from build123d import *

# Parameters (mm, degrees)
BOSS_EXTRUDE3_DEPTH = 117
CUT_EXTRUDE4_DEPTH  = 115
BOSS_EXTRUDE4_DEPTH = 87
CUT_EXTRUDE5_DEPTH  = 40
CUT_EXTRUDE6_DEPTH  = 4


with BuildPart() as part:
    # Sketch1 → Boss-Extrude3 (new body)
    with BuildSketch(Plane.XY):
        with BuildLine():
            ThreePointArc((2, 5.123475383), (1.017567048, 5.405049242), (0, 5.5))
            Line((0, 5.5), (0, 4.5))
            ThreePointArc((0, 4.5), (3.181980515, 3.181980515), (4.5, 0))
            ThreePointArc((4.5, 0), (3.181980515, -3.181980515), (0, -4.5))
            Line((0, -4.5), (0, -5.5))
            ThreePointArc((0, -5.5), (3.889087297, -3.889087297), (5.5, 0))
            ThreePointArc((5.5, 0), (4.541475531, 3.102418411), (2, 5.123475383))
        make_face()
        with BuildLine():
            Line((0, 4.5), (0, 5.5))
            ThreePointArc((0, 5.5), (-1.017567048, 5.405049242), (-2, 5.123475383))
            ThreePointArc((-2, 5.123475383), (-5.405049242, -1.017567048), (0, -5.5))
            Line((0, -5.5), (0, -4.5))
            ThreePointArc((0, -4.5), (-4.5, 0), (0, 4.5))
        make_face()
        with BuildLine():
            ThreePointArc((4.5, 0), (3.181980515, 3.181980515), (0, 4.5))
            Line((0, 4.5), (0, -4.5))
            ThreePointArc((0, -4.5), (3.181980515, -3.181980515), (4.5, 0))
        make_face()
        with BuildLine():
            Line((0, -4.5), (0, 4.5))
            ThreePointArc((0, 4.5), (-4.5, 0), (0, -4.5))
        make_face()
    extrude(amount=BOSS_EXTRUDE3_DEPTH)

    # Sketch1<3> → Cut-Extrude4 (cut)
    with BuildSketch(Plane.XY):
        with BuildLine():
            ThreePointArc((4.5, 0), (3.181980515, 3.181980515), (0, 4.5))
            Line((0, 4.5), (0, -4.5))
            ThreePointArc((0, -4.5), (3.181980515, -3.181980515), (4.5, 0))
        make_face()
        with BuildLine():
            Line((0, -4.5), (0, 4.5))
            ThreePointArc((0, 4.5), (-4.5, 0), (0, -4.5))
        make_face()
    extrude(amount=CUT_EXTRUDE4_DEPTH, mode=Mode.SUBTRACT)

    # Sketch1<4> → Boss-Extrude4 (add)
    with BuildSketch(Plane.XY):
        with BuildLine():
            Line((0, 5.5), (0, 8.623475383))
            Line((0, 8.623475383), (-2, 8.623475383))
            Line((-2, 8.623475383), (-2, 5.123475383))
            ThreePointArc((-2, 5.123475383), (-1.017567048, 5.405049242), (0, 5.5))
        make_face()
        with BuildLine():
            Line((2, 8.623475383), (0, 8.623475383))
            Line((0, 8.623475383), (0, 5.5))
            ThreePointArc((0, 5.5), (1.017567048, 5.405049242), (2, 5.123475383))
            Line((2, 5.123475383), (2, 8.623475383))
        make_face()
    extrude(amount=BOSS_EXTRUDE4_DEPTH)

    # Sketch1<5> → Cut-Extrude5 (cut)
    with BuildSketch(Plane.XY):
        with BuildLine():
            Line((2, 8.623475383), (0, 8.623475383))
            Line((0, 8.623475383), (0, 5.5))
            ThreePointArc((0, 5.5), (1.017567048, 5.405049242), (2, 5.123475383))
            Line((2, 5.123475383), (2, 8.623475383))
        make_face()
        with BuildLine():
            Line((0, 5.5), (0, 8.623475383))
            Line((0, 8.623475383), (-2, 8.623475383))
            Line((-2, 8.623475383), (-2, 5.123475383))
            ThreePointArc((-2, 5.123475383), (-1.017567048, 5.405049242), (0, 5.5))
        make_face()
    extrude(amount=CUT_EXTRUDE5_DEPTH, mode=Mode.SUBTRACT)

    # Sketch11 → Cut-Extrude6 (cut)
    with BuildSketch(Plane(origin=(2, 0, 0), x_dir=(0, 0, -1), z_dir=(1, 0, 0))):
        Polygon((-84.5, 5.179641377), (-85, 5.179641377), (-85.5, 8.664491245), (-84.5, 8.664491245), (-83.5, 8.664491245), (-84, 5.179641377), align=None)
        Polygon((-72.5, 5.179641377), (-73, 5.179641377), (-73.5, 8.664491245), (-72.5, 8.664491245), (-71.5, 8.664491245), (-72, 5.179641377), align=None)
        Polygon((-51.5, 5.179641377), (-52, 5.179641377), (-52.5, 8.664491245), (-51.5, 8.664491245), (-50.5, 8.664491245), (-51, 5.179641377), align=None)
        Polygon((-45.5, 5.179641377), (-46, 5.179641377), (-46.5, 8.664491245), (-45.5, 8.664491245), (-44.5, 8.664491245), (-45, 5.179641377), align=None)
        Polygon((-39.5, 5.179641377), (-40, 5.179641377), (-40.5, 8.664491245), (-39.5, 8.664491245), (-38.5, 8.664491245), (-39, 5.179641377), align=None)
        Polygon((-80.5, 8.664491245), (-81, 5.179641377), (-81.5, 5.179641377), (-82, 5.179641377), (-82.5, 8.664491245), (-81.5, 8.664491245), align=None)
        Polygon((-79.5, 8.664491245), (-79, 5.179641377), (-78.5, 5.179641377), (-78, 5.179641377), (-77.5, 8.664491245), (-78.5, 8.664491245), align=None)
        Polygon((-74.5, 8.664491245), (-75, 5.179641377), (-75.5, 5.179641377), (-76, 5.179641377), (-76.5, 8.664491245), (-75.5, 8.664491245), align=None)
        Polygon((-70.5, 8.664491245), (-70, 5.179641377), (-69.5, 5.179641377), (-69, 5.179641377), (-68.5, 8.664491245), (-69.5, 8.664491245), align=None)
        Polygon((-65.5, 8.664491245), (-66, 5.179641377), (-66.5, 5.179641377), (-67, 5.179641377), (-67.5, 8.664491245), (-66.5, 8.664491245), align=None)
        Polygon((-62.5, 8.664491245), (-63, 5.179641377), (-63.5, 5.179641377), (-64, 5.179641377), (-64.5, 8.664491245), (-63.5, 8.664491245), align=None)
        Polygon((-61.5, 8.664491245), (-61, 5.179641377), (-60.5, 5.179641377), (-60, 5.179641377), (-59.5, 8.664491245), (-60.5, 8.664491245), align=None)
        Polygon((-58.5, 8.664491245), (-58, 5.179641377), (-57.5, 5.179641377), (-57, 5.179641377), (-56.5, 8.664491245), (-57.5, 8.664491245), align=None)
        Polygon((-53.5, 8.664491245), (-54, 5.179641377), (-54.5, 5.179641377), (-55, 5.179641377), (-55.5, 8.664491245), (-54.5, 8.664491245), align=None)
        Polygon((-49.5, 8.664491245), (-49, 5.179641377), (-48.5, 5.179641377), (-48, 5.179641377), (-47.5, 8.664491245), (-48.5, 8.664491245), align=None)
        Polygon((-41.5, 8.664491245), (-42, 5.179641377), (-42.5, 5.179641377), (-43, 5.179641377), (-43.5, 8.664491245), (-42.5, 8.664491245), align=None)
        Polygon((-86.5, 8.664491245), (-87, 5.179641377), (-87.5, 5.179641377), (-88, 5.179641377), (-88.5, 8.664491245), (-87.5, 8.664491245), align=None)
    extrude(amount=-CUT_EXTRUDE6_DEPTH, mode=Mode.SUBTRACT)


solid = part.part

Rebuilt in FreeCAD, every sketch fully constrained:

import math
import FreeCAD as App
import Part
import Sketcher
from FreeCAD import Vector

doc = App.newDocument("Part")
params = doc.addObject("Spreadsheet::Sheet", "Params")
for row, (alias, value) in enumerate([
    ("sketch1_radius", "5.5 mm"),
    ("pad1_length", "117 mm"),
    ("sketch2_radius", "4.5 mm"),
    ("pocket1_length", "115 mm"),
    ("sketch3_radius", "5.5 mm"),
    ("sketch3_width", "4 mm"),
    ("sketch3_height", "3.5 mm"),
    ("pad2_length", "87 mm"),
    ("sketch4_radius", "5.5 mm"),
    ("sketch4_width", "4 mm"),
    ("sketch4_height", "3.5 mm"),
    ("pocket2_length", "40 mm"),
    ("sketch5_height", "1 mm"),
    ("sketch5_height2", "2 mm"),
    ("pocket3_length", "4 mm"),
], start=1):
    params.set(f"A{row}", alias)
    params.set(f"B{row}", "=" + value)
    params.setAlias(f"B{row}", alias)

body = doc.addObject("PartDesign::Body", "Body")

sketch1 = body.newObject("Sketcher::SketchObject", "Sketch")
sketch1.AttachmentSupport = (doc.getObject("XY_Plane"), [""])
sketch1.MapMode = "FlatFace"
sketch1.addGeometry([
    Part.ArcOfCircle(Part.Circle(Vector(0, 0, 0), Vector(0, 0, 1), 5.5), math.radians(-90), math.radians(0)),
    Part.ArcOfCircle(Part.Circle(Vector(0, 0, 0), Vector(0, 0, 1), 5.5), math.radians(0), math.radians(69)),
    Part.ArcOfCircle(Part.Circle(Vector(0, 0, 0), Vector(0, 0, 1), 5.5), math.radians(69), math.radians(90)),
    Part.ArcOfCircle(Part.Circle(Vector(0, 0, 0), Vector(0, 0, 1), 5.5), math.radians(90), math.radians(111)),
    Part.ArcOfCircle(Part.Circle(Vector(0, 0, 0), Vector(0, 0, 1), 5.5), math.radians(111), math.radians(270)),
], False)
sketch1.addConstraint([
    Sketcher.Constraint("Tangent", 0, 2, 1, 1),
    Sketcher.Constraint("Tangent", 1, 2, 2, 1),
    Sketcher.Constraint("Tangent", 2, 2, 3, 1),
    Sketcher.Constraint("Tangent", 3, 2, 4, 1),
    Sketcher.Constraint("Tangent", 4, 2, 0, 1),
    Sketcher.Constraint("Coincident", 0, 3, -1, 1),
    Sketcher.Constraint("Coincident", 2, 3, -1, 1),
    Sketcher.Constraint("PointOnObject", 0, 2, -1),
    Sketcher.Constraint("PointOnObject", 2, 2, -2),
    Sketcher.Constraint("PointOnObject", 4, 2, -2),
    Sketcher.Constraint("Horizontal", 1, 2, 3, 2),
    Sketcher.Constraint("Radius", 0, 5.5),
    Sketcher.Constraint("DistanceX", -1, 1, 1, 2, 2.0),
])
sketch1.setExpression("Constraints[11]", "Params.sketch1_radius")
pad1 = body.newObject("PartDesign::Pad", "Pad")
pad1.Profile = sketch1
pad1.setExpression("Length", "Params.pad1_length")

sketch2 = body.newObject("Sketcher::SketchObject", "Sketch001")
sketch2.AttachmentSupport = (doc.getObject("XY_Plane"), [""])
sketch2.MapMode = "FlatFace"
sketch2.addGeometry([
    Part.ArcOfCircle(Part.Circle(Vector(0, 0, 0), Vector(0, 0, 1), 4.5), math.radians(0), math.radians(90)),
    Part.ArcOfCircle(Part.Circle(Vector(0, 0, 0), Vector(0, 0, 1), 4.5), math.radians(90), math.radians(270)),
    Part.ArcOfCircle(Part.Circle(Vector(0, 0, 0), Vector(0, 0, 1), 4.5), math.radians(-90), math.radians(0)),
], False)
sketch2.addConstraint([
    Sketcher.Constraint("Tangent", 0, 2, 1, 1),
    Sketcher.Constraint("Tangent", 1, 2, 2, 1),
    Sketcher.Constraint("Tangent", 2, 2, 0, 1),
    Sketcher.Constraint("Coincident", 0, 3, -1, 1),
    Sketcher.Constraint("PointOnObject", 0, 2, -2),
    Sketcher.Constraint("PointOnObject", 1, 2, -2),
    Sketcher.Constraint("PointOnObject", 2, 2, -1),
    Sketcher.Constraint("Radius", 0, 4.5),
])
sketch2.setExpression("Constraints[7]", "Params.sketch2_radius")
pocket1 = body.newObject("PartDesign::Pocket", "Pocket")
pocket1.Profile = sketch2
pocket1.setExpression("Length", "Params.pocket1_length")
pocket1.Reversed = True

sketch3 = body.newObject("Sketcher::SketchObject", "Sketch002")
sketch3.AttachmentSupport = (doc.getObject("XY_Plane"), [""])
sketch3.MapMode = "FlatFace"
sketch3.addGeometry([
    Part.LineSegment(Vector(-2, 8.6, 0), Vector(-2, 5.1, 0)),
    Part.ArcOfCircle(Part.Circle(Vector(0, 0, 0), Vector(0, 0, 1), 5.5), math.radians(90), math.radians(111)),
    Part.ArcOfCircle(Part.Circle(Vector(0, 0, 0), Vector(0, 0, 1), 5.5), math.radians(69), math.radians(90)),
    Part.LineSegment(Vector(2, 5.1, 0), Vector(2, 8.6, 0)),
    Part.LineSegment(Vector(2, 8.6, 0), Vector(-2, 8.6, 0)),
], False)
sketch3.addConstraint([
    Sketcher.Constraint("Coincident", 0, 2, 1, 2),
    Sketcher.Constraint("Tangent", 1, 1, 2, 2),
    Sketcher.Constraint("Coincident", 2, 1, 3, 1),
    Sketcher.Constraint("Coincident", 3, 2, 4, 1),
    Sketcher.Constraint("Coincident", 4, 2, 0, 1),
    Sketcher.Constraint("Vertical", 0),
    Sketcher.Constraint("Vertical", 3),
    Sketcher.Constraint("Horizontal", 4),
    Sketcher.Constraint("Coincident", 1, 3, -1, 1),
    Sketcher.Constraint("Equal", 1, 2),
    Sketcher.Constraint("PointOnObject", 1, 1, -2),
    Sketcher.Constraint("Horizontal", 0, 2, 2, 1),
    Sketcher.Constraint("Radius", 1, 5.5),
    Sketcher.Constraint("DistanceX", 4, 2, 4, 1, 4.0),
    Sketcher.Constraint("DistanceY", 0, 2, 0, 1, 3.5),
])
sketch3.setExpression("Constraints[12]", "Params.sketch3_radius")
sketch3.setExpression("Constraints[13]", "Params.sketch3_width")
sketch3.setExpression("Constraints[14]", "Params.sketch3_height")
pad2 = body.newObject("PartDesign::Pad", "Pad001")
pad2.Profile = sketch3
pad2.setExpression("Length", "Params.pad2_length")

sketch4 = body.newObject("Sketcher::SketchObject", "Sketch003")
sketch4.AttachmentSupport = (doc.getObject("XY_Plane"), [""])
sketch4.MapMode = "FlatFace"
sketch4.addGeometry([
    Part.LineSegment(Vector(2, 8.6, 0), Vector(-2, 8.6, 0)),
    Part.LineSegment(Vector(-2, 8.6, 0), Vector(-2, 5.1, 0)),
    Part.ArcOfCircle(Part.Circle(Vector(0, 0, 0), Vector(0, 0, 1), 5.5), math.radians(90), math.radians(111)),
    Part.ArcOfCircle(Part.Circle(Vector(0, 0, 0), Vector(0, 0, 1), 5.5), math.radians(69), math.radians(90)),
    Part.LineSegment(Vector(2, 5.1, 0), Vector(2, 8.6, 0)),
], False)
sketch4.addConstraint([
    Sketcher.Constraint("Coincident", 0, 2, 1, 1),
    Sketcher.Constraint("Coincident", 1, 2, 2, 2),
    Sketcher.Constraint("Tangent", 2, 1, 3, 2),
    Sketcher.Constraint("Coincident", 3, 1, 4, 1),
    Sketcher.Constraint("Coincident", 4, 2, 0, 1),
    Sketcher.Constraint("Horizontal", 0),
    Sketcher.Constraint("Vertical", 1),
    Sketcher.Constraint("Vertical", 4),
    Sketcher.Constraint("Coincident", 2, 3, -1, 1),
    Sketcher.Constraint("Equal", 2, 3),
    Sketcher.Constraint("PointOnObject", 2, 1, -2),
    Sketcher.Constraint("Horizontal", 1, 2, 3, 1),
    Sketcher.Constraint("Radius", 2, 5.5),
    Sketcher.Constraint("DistanceX", 0, 2, 0, 1, 4.0),
    Sketcher.Constraint("DistanceY", 1, 2, 1, 1, 3.5),
])
sketch4.setExpression("Constraints[12]", "Params.sketch4_radius")
sketch4.setExpression("Constraints[13]", "Params.sketch4_width")
sketch4.setExpression("Constraints[14]", "Params.sketch4_height")
pocket2 = body.newObject("PartDesign::Pocket", "Pocket001")
pocket2.Profile = sketch4
pocket2.setExpression("Length", "Params.pocket2_length")
pocket2.Reversed = True

sketch5 = body.newObject("Sketcher::SketchObject", "Sketch004")
sketch5.AttachmentSupport = (doc.getObject("YZ_Plane"), [""])
sketch5.MapMode = "FlatFace"
sketch5.AttachmentOffset = App.Placement(Vector(0, 0, 2), App.Rotation())
sketch5.addGeometry([
    Part.LineSegment(Vector(5.2, 85, 0), Vector(5.2, 84, 0)),
    Part.LineSegment(Vector(5.2, 84, 0), Vector(8.7, 83.5, 0)),
    Part.LineSegment(Vector(8.7, 83.5, 0), Vector(8.7, 85.5, 0)),
    Part.LineSegment(Vector(8.7, 85.5, 0), Vector(5.2, 85, 0)),
    Part.LineSegment(Vector(5.2, 73, 0), Vector(5.2, 72, 0)),
    Part.LineSegment(Vector(5.2, 72, 0), Vector(8.7, 71.5, 0)),
    Part.LineSegment(Vector(8.7, 71.5, 0), Vector(8.7, 73.5, 0)),
    Part.LineSegment(Vector(8.7, 73.5, 0), Vector(5.2, 73, 0)),
    Part.LineSegment(Vector(5.2, 52, 0), Vector(5.2, 51, 0)),
    Part.LineSegment(Vector(5.2, 51, 0), Vector(8.7, 50.5, 0)),
    Part.LineSegment(Vector(8.7, 50.5, 0), Vector(8.7, 52.5, 0)),
    Part.LineSegment(Vector(8.7, 52.5, 0), Vector(5.2, 52, 0)),
    Part.LineSegment(Vector(5.2, 46, 0), Vector(5.2, 45, 0)),
    Part.LineSegment(Vector(5.2, 45, 0), Vector(8.7, 44.5, 0)),
    Part.LineSegment(Vector(8.7, 44.5, 0), Vector(8.7, 46.5, 0)),
    Part.LineSegment(Vector(8.7, 46.5, 0), Vector(5.2, 46, 0)),
    Part.LineSegment(Vector(5.2, 40, 0), Vector(5.2, 39, 0)),
    Part.LineSegment(Vector(5.2, 39, 0), Vector(8.7, 38.5, 0)),
    Part.LineSegment(Vector(8.7, 38.5, 0), Vector(8.7, 40.5, 0)),
    Part.LineSegment(Vector(8.7, 40.5, 0), Vector(5.2, 40, 0)),
    Part.LineSegment(Vector(5.2, 81, 0), Vector(8.7, 80.5, 0)),
    Part.LineSegment(Vector(8.7, 80.5, 0), Vector(8.7, 82.5, 0)),
    Part.LineSegment(Vector(8.7, 82.5, 0), Vector(5.2, 82, 0)),
    Part.LineSegment(Vector(5.2, 82, 0), Vector(5.2, 81, 0)),
    Part.LineSegment(Vector(8.7, 79.5, 0), Vector(5.2, 79, 0)),
    Part.LineSegment(Vector(5.2, 79, 0), Vector(5.2, 78, 0)),
    Part.LineSegment(Vector(5.2, 78, 0), Vector(8.7, 77.5, 0)),
    Part.LineSegment(Vector(8.7, 77.5, 0), Vector(8.7, 79.5, 0)),
    Part.LineSegment(Vector(5.2, 75, 0), Vector(8.7, 74.5, 0)),
    Part.LineSegment(Vector(8.7, 74.5, 0), Vector(8.7, 76.5, 0)),
    Part.LineSegment(Vector(8.7, 76.5, 0), Vector(5.2, 76, 0)),
    Part.LineSegment(Vector(5.2, 76, 0), Vector(5.2, 75, 0)),
    Part.LineSegment(Vector(8.7, 70.5, 0), Vector(5.2, 70, 0)),
    Part.LineSegment(Vector(5.2, 70, 0), Vector(5.2, 69, 0)),
    Part.LineSegment(Vector(5.2, 69, 0), Vector(8.7, 68.5, 0)),
    Part.LineSegment(Vector(8.7, 68.5, 0), Vector(8.7, 70.5, 0)),
    Part.LineSegment(Vector(5.2, 66, 0), Vector(8.7, 65.5, 0)),
    Part.LineSegment(Vector(8.7, 65.5, 0), Vector(8.7, 67.5, 0)),
    Part.LineSegment(Vector(8.7, 67.5, 0), Vector(5.2, 67, 0)),
    Part.LineSegment(Vector(5.2, 67, 0), Vector(5.2, 66, 0)),
    Part.LineSegment(Vector(5.2, 63, 0), Vector(8.7, 62.5, 0)),
    Part.LineSegment(Vector(8.7, 62.5, 0), Vector(8.7, 64.5, 0)),
    Part.LineSegment(Vector(8.7, 64.5, 0), Vector(5.2, 64, 0)),
    Part.LineSegment(Vector(5.2, 64, 0), Vector(5.2, 63, 0)),
    Part.LineSegment(Vector(8.7, 61.5, 0), Vector(5.2, 61, 0)),
    Part.LineSegment(Vector(5.2, 61, 0), Vector(5.2, 60, 0)),
    Part.LineSegment(Vector(5.2, 60, 0), Vector(8.7, 59.5, 0)),
    Part.LineSegment(Vector(8.7, 59.5, 0), Vector(8.7, 61.5, 0)),
    Part.LineSegment(Vector(8.7, 58.5, 0), Vector(5.2, 58, 0)),
    Part.LineSegment(Vector(5.2, 58, 0), Vector(5.2, 57, 0)),
    Part.LineSegment(Vector(5.2, 57, 0), Vector(8.7, 56.5, 0)),
    Part.LineSegment(Vector(8.7, 56.5, 0), Vector(8.7, 58.5, 0)),
    Part.LineSegment(Vector(5.2, 54, 0), Vector(8.7, 53.5, 0)),
    Part.LineSegment(Vector(8.7, 53.5, 0), Vector(8.7, 55.5, 0)),
    Part.LineSegment(Vector(8.7, 55.5, 0), Vector(5.2, 55, 0)),
    Part.LineSegment(Vector(5.2, 55, 0), Vector(5.2, 54, 0)),
    Part.LineSegment(Vector(8.7, 49.5, 0), Vector(5.2, 49, 0)),
    Part.LineSegment(Vector(5.2, 49, 0), Vector(5.2, 48, 0)),
    Part.LineSegment(Vector(5.2, 48, 0), Vector(8.7, 47.5, 0)),
    Part.LineSegment(Vector(8.7, 47.5, 0), Vector(8.7, 49.5, 0)),
    Part.LineSegment(Vector(5.2, 42, 0), Vector(8.7, 41.5, 0)),
    Part.LineSegment(Vector(8.7, 41.5, 0), Vector(8.7, 43.5, 0)),
    Part.LineSegment(Vector(8.7, 43.5, 0), Vector(5.2, 43, 0)),
    Part.LineSegment(Vector(5.2, 43, 0), Vector(5.2, 42, 0)),
    Part.LineSegment(Vector(5.2, 87, 0), Vector(8.7, 86.5, 0)),
    Part.LineSegment(Vector(8.7, 86.5, 0), Vector(8.7, 88.5, 0)),
    Part.LineSegment(Vector(8.7, 88.5, 0), Vector(5.2, 88, 0)),
    Part.LineSegment(Vector(5.2, 88, 0), Vector(5.2, 87, 0)),
], False)
sketch5.addConstraint([
    Sketcher.Constraint("Coincident", 0, 2, 1, 1),
    Sketcher.Constraint("Coincident", 1, 2, 2, 1),
    Sketcher.Constraint("Coincident", 2, 2, 3, 1),
    Sketcher.Constraint("Coincident", 3, 2, 0, 1),
    Sketcher.Constraint("Coincident", 4, 2, 5, 1),
    Sketcher.Constraint("Coincident", 5, 2, 6, 1),
    Sketcher.Constraint("Coincident", 6, 2, 7, 1),
    Sketcher.Constraint("Coincident", 7, 2, 4, 1),
    Sketcher.Constraint("Coincident", 8, 2, 9, 1),
    Sketcher.Constraint("Coincident", 9, 2, 10, 1),
    Sketcher.Constraint("Coincident", 10, 2, 11, 1),
    Sketcher.Constraint("Coincident", 11, 2, 8, 1),
    Sketcher.Constraint("Coincident", 12, 2, 13, 1),
    Sketcher.Constraint("Coincident", 13, 2, 14, 1),
    Sketcher.Constraint("Coincident", 14, 2, 15, 1),
    Sketcher.Constraint("Coincident", 15, 2, 12, 1),
    Sketcher.Constraint("Coincident", 16, 2, 17, 1),
    Sketcher.Constraint("Coincident", 17, 2, 18, 1),
    Sketcher.Constraint("Coincident", 18, 2, 19, 1),
    Sketcher.Constraint("Coincident", 19, 2, 16, 1),
    Sketcher.Constraint("Coincident", 20, 2, 21, 1),
    Sketcher.Constraint("Coincident", 21, 2, 22, 1),
    Sketcher.Constraint("Coincident", 22, 2, 23, 1),
    Sketcher.Constraint("Coincident", 23, 2, 20, 1),
    Sketcher.Constraint("Coincident", 24, 2, 25, 1),
    Sketcher.Constraint("Coincident", 25, 2, 26, 1),
    Sketcher.Constraint("Coincident", 26, 2, 27, 1),
    Sketcher.Constraint("Coincident", 27, 2, 24, 1),
    Sketcher.Constraint("Coincident", 28, 2, 29, 1),
    Sketcher.Constraint("Coincident", 29, 2, 30, 1),
    Sketcher.Constraint("Coincident", 30, 2, 31, 1),
    Sketcher.Constraint("Coincident", 31, 2, 28, 1),
    Sketcher.Constraint("Coincident", 32, 2, 33, 1),
    Sketcher.Constraint("Coincident", 33, 2, 34, 1),
    Sketcher.Constraint("Coincident", 34, 2, 35, 1),
    Sketcher.Constraint("Coincident", 35, 2, 32, 1),
    Sketcher.Constraint("Coincident", 36, 2, 37, 1),
    Sketcher.Constraint("Coincident", 37, 2, 38, 1),
    Sketcher.Constraint("Coincident", 38, 2, 39, 1),
    Sketcher.Constraint("Coincident", 39, 2, 36, 1),
    Sketcher.Constraint("Coincident", 40, 2, 41, 1),
    Sketcher.Constraint("Coincident", 41, 2, 42, 1),
    Sketcher.Constraint("Coincident", 42, 2, 43, 1),
    Sketcher.Constraint("Coincident", 43, 2, 40, 1),
    Sketcher.Constraint("Coincident", 44, 2, 45, 1),
    Sketcher.Constraint("Coincident", 45, 2, 46, 1),
    Sketcher.Constraint("Coincident", 46, 2, 47, 1),
    Sketcher.Constraint("Coincident", 47, 2, 44, 1),
    Sketcher.Constraint("Coincident", 48, 2, 49, 1),
    Sketcher.Constraint("Coincident", 49, 2, 50, 1),
    Sketcher.Constraint("Coincident", 50, 2, 51, 1),
    Sketcher.Constraint("Coincident", 51, 2, 48, 1),
    Sketcher.Constraint("Coincident", 52, 2, 53, 1),
    Sketcher.Constraint("Coincident", 53, 2, 54, 1),
    Sketcher.Constraint("Coincident", 54, 2, 55, 1),
    Sketcher.Constraint("Coincident", 55, 2, 52, 1),
    Sketcher.Constraint("Coincident", 56, 2, 57, 1),
    Sketcher.Constraint("Coincident", 57, 2, 58, 1),
    Sketcher.Constraint("Coincident", 58, 2, 59, 1),
    Sketcher.Constraint("Coincident", 59, 2, 56, 1),
    Sketcher.Constraint("Coincident", 60, 2, 61, 1),
    Sketcher.Constraint("Coincident", 61, 2, 62, 1),
    Sketcher.Constraint("Coincident", 62, 2, 63, 1),
    Sketcher.Constraint("Coincident", 63, 2, 60, 1),
    Sketcher.Constraint("Coincident", 64, 2, 65, 1),
    Sketcher.Constraint("Coincident", 65, 2, 66, 1),
    Sketcher.Constraint("Coincident", 66, 2, 67, 1),
    Sketcher.Constraint("Coincident", 67, 2, 64, 1),
    Sketcher.Constraint("Vertical", 0),
    Sketcher.Constraint("Vertical", 2),
    Sketcher.Constraint("Vertical", 4),
    Sketcher.Constraint("Vertical", 6),
    Sketcher.Constraint("Vertical", 8),
    Sketcher.Constraint("Vertical", 10),
    Sketcher.Constraint("Vertical", 12),
    Sketcher.Constraint("Vertical", 14),
    Sketcher.Constraint("Vertical", 16),
    Sketcher.Constraint("Vertical", 18),
    Sketcher.Constraint("Vertical", 21),
    Sketcher.Constraint("Vertical", 23),
    Sketcher.Constraint("Vertical", 25),
    Sketcher.Constraint("Vertical", 27),
    Sketcher.Constraint("Vertical", 29),
    Sketcher.Constraint("Vertical", 31),
    Sketcher.Constraint("Vertical", 33),
    Sketcher.Constraint("Vertical", 35),
    Sketcher.Constraint("Vertical", 37),
    Sketcher.Constraint("Vertical", 39),
    Sketcher.Constraint("Vertical", 41),
    Sketcher.Constraint("Vertical", 43),
    Sketcher.Constraint("Vertical", 45),
    Sketcher.Constraint("Vertical", 47),
    Sketcher.Constraint("Vertical", 49),
    Sketcher.Constraint("Vertical", 51),
    Sketcher.Constraint("Vertical", 53),
    Sketcher.Constraint("Vertical", 55),
    Sketcher.Constraint("Vertical", 57),
    Sketcher.Constraint("Vertical", 59),
    Sketcher.Constraint("Vertical", 61),
    Sketcher.Constraint("Vertical", 63),
    Sketcher.Constraint("Vertical", 65),
    Sketcher.Constraint("Vertical", 67),
    Sketcher.Constraint("Parallel", 1, 5),
    Sketcher.Constraint("Parallel", 3, 7),
    Sketcher.Constraint("Parallel", 5, 9),
    Sketcher.Constraint("Parallel", 7, 11),
    Sketcher.Constraint("Parallel", 9, 13),
    Sketcher.Constraint("Parallel", 11, 15),
    Sketcher.Constraint("Parallel", 13, 17),
    Sketcher.Constraint("Parallel", 15, 19),
    Sketcher.Constraint("Parallel", 17, 20),
    Sketcher.Constraint("Parallel", 19, 22),
    Sketcher.Constraint("Parallel", 22, 24),
    Sketcher.Constraint("Parallel", 20, 26),
    Sketcher.Constraint("Parallel", 26, 28),
    Sketcher.Constraint("Parallel", 24, 30),
    Sketcher.Constraint("Parallel", 30, 32),
    Sketcher.Constraint("Parallel", 28, 34),
    Sketcher.Constraint("Parallel", 34, 36),
    Sketcher.Constraint("Parallel", 32, 38),
    Sketcher.Constraint("Parallel", 36, 40),
    Sketcher.Constraint("Parallel", 38, 42),
    Sketcher.Constraint("Parallel", 42, 44),
    Sketcher.Constraint("Parallel", 40, 46),
    Sketcher.Constraint("Parallel", 44, 48),
    Sketcher.Constraint("Parallel", 46, 50),
    Sketcher.Constraint("Parallel", 50, 52),
    Sketcher.Constraint("Parallel", 48, 54),
    Sketcher.Constraint("Parallel", 54, 56),
    Sketcher.Constraint("Parallel", 52, 58),
    Sketcher.Constraint("Parallel", 58, 60),
    Sketcher.Constraint("Parallel", 56, 62),
    Sketcher.Constraint("Parallel", 60, 64),
    Sketcher.Constraint("Parallel", 62, 66),
    Sketcher.Constraint("Vertical", 3, 2, 4, 2),
    Sketcher.Constraint("Vertical", 2, 2, 5, 2),
    Sketcher.Constraint("Vertical", 7, 2, 8, 2),
    Sketcher.Constraint("Vertical", 6, 2, 9, 2),
    Sketcher.Constraint("Vertical", 11, 2, 12, 2),
    Sketcher.Constraint("Vertical", 10, 2, 13, 2),
    Sketcher.Constraint("Vertical", 15, 2, 16, 2),
    Sketcher.Constraint("Vertical", 14, 2, 17, 2),
    Sketcher.Constraint("Vertical", 18, 2, 20, 2),
    Sketcher.Constraint("Vertical", 19, 2, 22, 2),
    Sketcher.Constraint("Vertical", 23, 2, 24, 2),
    Sketcher.Constraint("Vertical", 21, 2, 26, 2),
    Sketcher.Constraint("Vertical", 27, 2, 28, 2),
    Sketcher.Constraint("Vertical", 25, 2, 30, 2),
    Sketcher.Constraint("Vertical", 31, 2, 32, 2),
    Sketcher.Constraint("Vertical", 29, 2, 34, 2),
    Sketcher.Constraint("Vertical", 35, 2, 36, 2),
    Sketcher.Constraint("Vertical", 33, 2, 38, 2),
    Sketcher.Constraint("Vertical", 37, 2, 40, 2),
    Sketcher.Constraint("Vertical", 39, 2, 42, 2),
    Sketcher.Constraint("Vertical", 43, 2, 44, 2),
    Sketcher.Constraint("Vertical", 41, 2, 46, 2),
    Sketcher.Constraint("Vertical", 45, 2, 48, 2),
    Sketcher.Constraint("Vertical", 47, 2, 50, 2),
    Sketcher.Constraint("Vertical", 51, 2, 52, 2),
    Sketcher.Constraint("Vertical", 49, 2, 54, 2),
    Sketcher.Constraint("Vertical", 55, 2, 56, 2),
    Sketcher.Constraint("Vertical", 53, 2, 58, 2),
    Sketcher.Constraint("Vertical", 59, 2, 60, 2),
    Sketcher.Constraint("Vertical", 57, 2, 62, 2),
    Sketcher.Constraint("Vertical", 61, 2, 64, 2),
    Sketcher.Constraint("Vertical", 63, 2, 66, 2),
    Sketcher.Constraint("Equal", 0, 4),
    Sketcher.Constraint("Equal", 4, 8),
    Sketcher.Constraint("Equal", 8, 12),
    Sketcher.Constraint("Equal", 12, 16),
    Sketcher.Constraint("Equal", 18, 21),
    Sketcher.Constraint("Equal", 23, 25),
    Sketcher.Constraint("Equal", 27, 29),
    Sketcher.Constraint("Equal", 31, 33),
    Sketcher.Constraint("Equal", 35, 37),
    Sketcher.Constraint("Equal", 37, 41),
    Sketcher.Constraint("Equal", 43, 45),
    Sketcher.Constraint("Equal", 45, 49),
    Sketcher.Constraint("Equal", 51, 53),
    Sketcher.Constraint("Equal", 55, 57),
    Sketcher.Constraint("Equal", 59, 61),
    Sketcher.Constraint("Equal", 61, 65),
    Sketcher.Constraint("Equal", 1, 3),
    Sketcher.Constraint("DistanceY", 0, 2, 0, 1, 1.0),
    Sketcher.Constraint("DistanceY", 2, 1, 2, 2, 2.0),
    Sketcher.Constraint("DistanceY", -1, 1, 0, 2, 84.0),
    Sketcher.Constraint("DistanceY", -1, 1, 4, 2, 72.0),
    Sketcher.Constraint("DistanceY", -1, 1, 8, 2, 51.0),
    Sketcher.Constraint("DistanceY", -1, 1, 12, 2, 45.0),
    Sketcher.Constraint("DistanceY", -1, 1, 16, 2, 39.0),
    Sketcher.Constraint("DistanceY", -1, 1, 22, 2, 82.0),
    Sketcher.Constraint("DistanceY", -1, 1, 24, 2, 79.0),
    Sketcher.Constraint("DistanceY", -1, 1, 30, 2, 76.0),
    Sketcher.Constraint("DistanceY", -1, 1, 32, 2, 70.0),
    Sketcher.Constraint("DistanceY", -1, 1, 38, 2, 67.0),
    Sketcher.Constraint("DistanceY", -1, 1, 42, 2, 64.0),
    Sketcher.Constraint("DistanceY", -1, 1, 44, 2, 61.0),
    Sketcher.Constraint("DistanceY", -1, 1, 48, 2, 58.0),
    Sketcher.Constraint("DistanceY", -1, 1, 54, 2, 55.0),
    Sketcher.Constraint("DistanceY", -1, 1, 56, 2, 49.0),
    Sketcher.Constraint("DistanceY", -1, 1, 62, 2, 43.0),
    Sketcher.Constraint("DistanceY", -1, 1, 66, 2, 88.0),
    Sketcher.Constraint("DistanceX", -1, 1, 0, 2, 5.179641),
    Sketcher.Constraint("DistanceX", -1, 1, 1, 2, 8.664491),
])
sketch5.setExpression("Constraints[183]", "Params.sketch5_height")
sketch5.setExpression("Constraints[184]", "Params.sketch5_height2")
pocket3 = body.newObject("PartDesign::Pocket", "Pocket002")
pocket3.Profile = sketch5
pocket3.setExpression("Length", "Params.pocket3_length")

doc.recompute()
